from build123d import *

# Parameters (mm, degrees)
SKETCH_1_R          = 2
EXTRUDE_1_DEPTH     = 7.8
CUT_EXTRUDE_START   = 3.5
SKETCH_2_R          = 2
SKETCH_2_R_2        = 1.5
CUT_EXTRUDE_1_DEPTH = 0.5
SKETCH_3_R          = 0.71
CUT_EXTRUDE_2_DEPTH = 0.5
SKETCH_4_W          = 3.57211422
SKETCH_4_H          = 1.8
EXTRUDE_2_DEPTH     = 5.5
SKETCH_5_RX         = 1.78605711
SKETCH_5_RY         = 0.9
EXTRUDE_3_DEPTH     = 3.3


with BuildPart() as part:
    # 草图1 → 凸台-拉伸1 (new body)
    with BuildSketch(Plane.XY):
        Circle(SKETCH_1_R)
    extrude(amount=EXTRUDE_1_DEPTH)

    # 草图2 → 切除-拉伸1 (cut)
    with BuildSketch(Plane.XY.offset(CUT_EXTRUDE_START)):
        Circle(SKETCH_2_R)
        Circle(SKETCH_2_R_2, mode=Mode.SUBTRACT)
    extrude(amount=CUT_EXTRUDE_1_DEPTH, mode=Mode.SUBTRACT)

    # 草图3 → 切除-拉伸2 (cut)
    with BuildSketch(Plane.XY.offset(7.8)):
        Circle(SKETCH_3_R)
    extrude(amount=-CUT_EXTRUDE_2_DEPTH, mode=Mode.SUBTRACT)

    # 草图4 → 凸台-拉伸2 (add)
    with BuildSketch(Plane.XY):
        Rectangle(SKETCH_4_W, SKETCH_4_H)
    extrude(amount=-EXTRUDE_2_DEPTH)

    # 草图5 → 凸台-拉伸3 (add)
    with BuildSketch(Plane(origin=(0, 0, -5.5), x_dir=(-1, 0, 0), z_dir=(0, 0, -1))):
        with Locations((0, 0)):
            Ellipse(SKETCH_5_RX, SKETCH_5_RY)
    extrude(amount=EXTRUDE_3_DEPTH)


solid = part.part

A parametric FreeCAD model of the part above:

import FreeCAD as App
import Part
import Sketcher
Q = App.Units.Quantity


def add_polygon(sketch, points):
    """Adds a closed chain of lines whose ends are joined by coincident constraints."""
    first, n = sketch.GeometryCount, len(points)
    for a, b in zip(points, points[1:] + points[:1]):
        sketch.addGeometry(Part.LineSegment(App.Vector(*a, 0), App.Vector(*b, 0)), False)
    for i in range(n):
        sketch.addConstraint(Sketcher.Constraint("Coincident", first + i, 2, first + (i + 1) % n, 1))

doc = App.newDocument("Part")
body = doc.addObject("PartDesign::Body", "Body")

# Sketch on XY plane
sketch1 = body.newObject("Sketcher::SketchObject", "Sketch")
sketch1.AttachmentSupport = (doc.getObject("XY_Plane"), [""])
sketch1.MapMode = "FlatFace"
sketch1.addGeometry(Part.Circle(App.Vector(0, 0, 0), App.Vector(0, 0, 1), 2), False)
sketch1.addConstraint([
    Sketcher.Constraint("Coincident", 0, 3, -1, 1),
    Sketcher.Constraint("Diameter", 0, Q("4 mm")),
])
pad1 = body.newObject("PartDesign::Pad", "Pad")
pad1.Profile = sketch1
pad1.Length = 7.8

# Sketch on XY plane
sketch2 = body.newObject("Sketcher::SketchObject", "Sketch001")
sketch2.AttachmentSupport = (doc.getObject("XY_Plane"), [""])
sketch2.MapMode = "FlatFace"
sketch2.AttachmentOffset = App.Placement(App.Vector(0, 0, 3.5), App.Rotation())
sketch2.addGeometry([
    Part.Circle(App.Vector(0, 0, 0), App.Vector(0, 0, 1), 2),
    Part.Circle(App.Vector(0, 0, 0), App.Vector(0, 0, 1), 1.5),
], False)
sketch2.addConstraint([
    Sketcher.Constraint("Coincident", 0, 3, -1, 1),
    Sketcher.Constraint("Coincident", 1, 3, -1, 1),
    Sketcher.Constraint("Diameter", 0, Q("4 mm")),
    Sketcher.Constraint("Diameter", 1, Q("3 mm")),
])
pocket1 = body.newObject("PartDesign::Pocket", "Pocket")
pocket1.Profile = sketch2
pocket1.Length = 0.5
pocket1.Reversed = True

# Sketch on XY plane
sketch3 = body.newObject("Sketcher::SketchObject", "Sketch002")
sketch3.AttachmentSupport = (doc.getObject("XY_Plane"), [""])
sketch3.MapMode = "FlatFace"
sketch3.AttachmentOffset = App.Placement(App.Vector(0, 0, 7.8), App.Rotation())
sketch3.addGeometry(Part.Circle(App.Vector(0, 0, 0), App.Vector(0, 0, 1), 0.71), False)
sketch3.addConstraint([
    Sketcher.Constraint("Coincident", 0, 3, -1, 1),
    Sketcher.Constraint("Diameter", 0, Q("1.42 mm")),
])
pocket2 = body.newObject("PartDesign::Pocket", "Pocket001")
pocket2.Profile = sketch3
pocket2.Length = 0.5

# Sketch on XY plane
sketch4 = body.newObject("Sketcher::SketchObject", "Sketch003")
sketch4.AttachmentSupport = (doc.getObject("XY_Plane"), [""])
sketch4.MapMode = "FlatFace"
add_polygon(sketch4, [(-1.786057, 0.9), (-1.786057, -0.9), (1.786057, -0.9), (1.786057, 0.9)])  # lines 0-3
sketch4.addConstraint([
    Sketcher.Constraint("Vertical", 0),
    Sketcher.Constraint("Horizontal", 1),
    Sketcher.Constraint("Vertical", 2),
    Sketcher.Constraint("Horizontal", 3),
    Sketcher.Constraint("Symmetric", 0, 2, 2, 2, -1, 1),
    Sketcher.Constraint("DistanceY", 0, 2, 0, 1, Q("1.8 mm")),
    Sketcher.Constraint("DistanceX", 1, 1, 1, 2, Q("3.572114 mm")),
])
pad2 = body.newObject("PartDesign::Pad", "Pad001")
pad2.Profile = sketch4
pad2.Length = 5.5
pad2.Reversed = True

# Sketch on XY plane
sketch5 = body.newObject("Sketcher::SketchObject", "Sketch004")
sketch5.AttachmentSupport = (doc.getObject("XY_Plane"), [""])
sketch5.MapMode = "FlatFace"
sketch5.AttachmentOffset = App.Placement(App.Vector(0, 0, -5.5), App.Rotation())
sketch5.addGeometry(Part.Ellipse(App.Vector(-1.786057, 0, 0), App.Vector(0, -0.9, 0), App.Vector(0, 0, 0)), False)
sketch5.addConstraint(Sketcher.Constraint("Block", 0))
pad3 = body.newObject("PartDesign::Pad", "Pad002")
pad3.Profile = sketch5
pad3.Length = 3.3
pad3.Reversed = True

doc.recompute()
